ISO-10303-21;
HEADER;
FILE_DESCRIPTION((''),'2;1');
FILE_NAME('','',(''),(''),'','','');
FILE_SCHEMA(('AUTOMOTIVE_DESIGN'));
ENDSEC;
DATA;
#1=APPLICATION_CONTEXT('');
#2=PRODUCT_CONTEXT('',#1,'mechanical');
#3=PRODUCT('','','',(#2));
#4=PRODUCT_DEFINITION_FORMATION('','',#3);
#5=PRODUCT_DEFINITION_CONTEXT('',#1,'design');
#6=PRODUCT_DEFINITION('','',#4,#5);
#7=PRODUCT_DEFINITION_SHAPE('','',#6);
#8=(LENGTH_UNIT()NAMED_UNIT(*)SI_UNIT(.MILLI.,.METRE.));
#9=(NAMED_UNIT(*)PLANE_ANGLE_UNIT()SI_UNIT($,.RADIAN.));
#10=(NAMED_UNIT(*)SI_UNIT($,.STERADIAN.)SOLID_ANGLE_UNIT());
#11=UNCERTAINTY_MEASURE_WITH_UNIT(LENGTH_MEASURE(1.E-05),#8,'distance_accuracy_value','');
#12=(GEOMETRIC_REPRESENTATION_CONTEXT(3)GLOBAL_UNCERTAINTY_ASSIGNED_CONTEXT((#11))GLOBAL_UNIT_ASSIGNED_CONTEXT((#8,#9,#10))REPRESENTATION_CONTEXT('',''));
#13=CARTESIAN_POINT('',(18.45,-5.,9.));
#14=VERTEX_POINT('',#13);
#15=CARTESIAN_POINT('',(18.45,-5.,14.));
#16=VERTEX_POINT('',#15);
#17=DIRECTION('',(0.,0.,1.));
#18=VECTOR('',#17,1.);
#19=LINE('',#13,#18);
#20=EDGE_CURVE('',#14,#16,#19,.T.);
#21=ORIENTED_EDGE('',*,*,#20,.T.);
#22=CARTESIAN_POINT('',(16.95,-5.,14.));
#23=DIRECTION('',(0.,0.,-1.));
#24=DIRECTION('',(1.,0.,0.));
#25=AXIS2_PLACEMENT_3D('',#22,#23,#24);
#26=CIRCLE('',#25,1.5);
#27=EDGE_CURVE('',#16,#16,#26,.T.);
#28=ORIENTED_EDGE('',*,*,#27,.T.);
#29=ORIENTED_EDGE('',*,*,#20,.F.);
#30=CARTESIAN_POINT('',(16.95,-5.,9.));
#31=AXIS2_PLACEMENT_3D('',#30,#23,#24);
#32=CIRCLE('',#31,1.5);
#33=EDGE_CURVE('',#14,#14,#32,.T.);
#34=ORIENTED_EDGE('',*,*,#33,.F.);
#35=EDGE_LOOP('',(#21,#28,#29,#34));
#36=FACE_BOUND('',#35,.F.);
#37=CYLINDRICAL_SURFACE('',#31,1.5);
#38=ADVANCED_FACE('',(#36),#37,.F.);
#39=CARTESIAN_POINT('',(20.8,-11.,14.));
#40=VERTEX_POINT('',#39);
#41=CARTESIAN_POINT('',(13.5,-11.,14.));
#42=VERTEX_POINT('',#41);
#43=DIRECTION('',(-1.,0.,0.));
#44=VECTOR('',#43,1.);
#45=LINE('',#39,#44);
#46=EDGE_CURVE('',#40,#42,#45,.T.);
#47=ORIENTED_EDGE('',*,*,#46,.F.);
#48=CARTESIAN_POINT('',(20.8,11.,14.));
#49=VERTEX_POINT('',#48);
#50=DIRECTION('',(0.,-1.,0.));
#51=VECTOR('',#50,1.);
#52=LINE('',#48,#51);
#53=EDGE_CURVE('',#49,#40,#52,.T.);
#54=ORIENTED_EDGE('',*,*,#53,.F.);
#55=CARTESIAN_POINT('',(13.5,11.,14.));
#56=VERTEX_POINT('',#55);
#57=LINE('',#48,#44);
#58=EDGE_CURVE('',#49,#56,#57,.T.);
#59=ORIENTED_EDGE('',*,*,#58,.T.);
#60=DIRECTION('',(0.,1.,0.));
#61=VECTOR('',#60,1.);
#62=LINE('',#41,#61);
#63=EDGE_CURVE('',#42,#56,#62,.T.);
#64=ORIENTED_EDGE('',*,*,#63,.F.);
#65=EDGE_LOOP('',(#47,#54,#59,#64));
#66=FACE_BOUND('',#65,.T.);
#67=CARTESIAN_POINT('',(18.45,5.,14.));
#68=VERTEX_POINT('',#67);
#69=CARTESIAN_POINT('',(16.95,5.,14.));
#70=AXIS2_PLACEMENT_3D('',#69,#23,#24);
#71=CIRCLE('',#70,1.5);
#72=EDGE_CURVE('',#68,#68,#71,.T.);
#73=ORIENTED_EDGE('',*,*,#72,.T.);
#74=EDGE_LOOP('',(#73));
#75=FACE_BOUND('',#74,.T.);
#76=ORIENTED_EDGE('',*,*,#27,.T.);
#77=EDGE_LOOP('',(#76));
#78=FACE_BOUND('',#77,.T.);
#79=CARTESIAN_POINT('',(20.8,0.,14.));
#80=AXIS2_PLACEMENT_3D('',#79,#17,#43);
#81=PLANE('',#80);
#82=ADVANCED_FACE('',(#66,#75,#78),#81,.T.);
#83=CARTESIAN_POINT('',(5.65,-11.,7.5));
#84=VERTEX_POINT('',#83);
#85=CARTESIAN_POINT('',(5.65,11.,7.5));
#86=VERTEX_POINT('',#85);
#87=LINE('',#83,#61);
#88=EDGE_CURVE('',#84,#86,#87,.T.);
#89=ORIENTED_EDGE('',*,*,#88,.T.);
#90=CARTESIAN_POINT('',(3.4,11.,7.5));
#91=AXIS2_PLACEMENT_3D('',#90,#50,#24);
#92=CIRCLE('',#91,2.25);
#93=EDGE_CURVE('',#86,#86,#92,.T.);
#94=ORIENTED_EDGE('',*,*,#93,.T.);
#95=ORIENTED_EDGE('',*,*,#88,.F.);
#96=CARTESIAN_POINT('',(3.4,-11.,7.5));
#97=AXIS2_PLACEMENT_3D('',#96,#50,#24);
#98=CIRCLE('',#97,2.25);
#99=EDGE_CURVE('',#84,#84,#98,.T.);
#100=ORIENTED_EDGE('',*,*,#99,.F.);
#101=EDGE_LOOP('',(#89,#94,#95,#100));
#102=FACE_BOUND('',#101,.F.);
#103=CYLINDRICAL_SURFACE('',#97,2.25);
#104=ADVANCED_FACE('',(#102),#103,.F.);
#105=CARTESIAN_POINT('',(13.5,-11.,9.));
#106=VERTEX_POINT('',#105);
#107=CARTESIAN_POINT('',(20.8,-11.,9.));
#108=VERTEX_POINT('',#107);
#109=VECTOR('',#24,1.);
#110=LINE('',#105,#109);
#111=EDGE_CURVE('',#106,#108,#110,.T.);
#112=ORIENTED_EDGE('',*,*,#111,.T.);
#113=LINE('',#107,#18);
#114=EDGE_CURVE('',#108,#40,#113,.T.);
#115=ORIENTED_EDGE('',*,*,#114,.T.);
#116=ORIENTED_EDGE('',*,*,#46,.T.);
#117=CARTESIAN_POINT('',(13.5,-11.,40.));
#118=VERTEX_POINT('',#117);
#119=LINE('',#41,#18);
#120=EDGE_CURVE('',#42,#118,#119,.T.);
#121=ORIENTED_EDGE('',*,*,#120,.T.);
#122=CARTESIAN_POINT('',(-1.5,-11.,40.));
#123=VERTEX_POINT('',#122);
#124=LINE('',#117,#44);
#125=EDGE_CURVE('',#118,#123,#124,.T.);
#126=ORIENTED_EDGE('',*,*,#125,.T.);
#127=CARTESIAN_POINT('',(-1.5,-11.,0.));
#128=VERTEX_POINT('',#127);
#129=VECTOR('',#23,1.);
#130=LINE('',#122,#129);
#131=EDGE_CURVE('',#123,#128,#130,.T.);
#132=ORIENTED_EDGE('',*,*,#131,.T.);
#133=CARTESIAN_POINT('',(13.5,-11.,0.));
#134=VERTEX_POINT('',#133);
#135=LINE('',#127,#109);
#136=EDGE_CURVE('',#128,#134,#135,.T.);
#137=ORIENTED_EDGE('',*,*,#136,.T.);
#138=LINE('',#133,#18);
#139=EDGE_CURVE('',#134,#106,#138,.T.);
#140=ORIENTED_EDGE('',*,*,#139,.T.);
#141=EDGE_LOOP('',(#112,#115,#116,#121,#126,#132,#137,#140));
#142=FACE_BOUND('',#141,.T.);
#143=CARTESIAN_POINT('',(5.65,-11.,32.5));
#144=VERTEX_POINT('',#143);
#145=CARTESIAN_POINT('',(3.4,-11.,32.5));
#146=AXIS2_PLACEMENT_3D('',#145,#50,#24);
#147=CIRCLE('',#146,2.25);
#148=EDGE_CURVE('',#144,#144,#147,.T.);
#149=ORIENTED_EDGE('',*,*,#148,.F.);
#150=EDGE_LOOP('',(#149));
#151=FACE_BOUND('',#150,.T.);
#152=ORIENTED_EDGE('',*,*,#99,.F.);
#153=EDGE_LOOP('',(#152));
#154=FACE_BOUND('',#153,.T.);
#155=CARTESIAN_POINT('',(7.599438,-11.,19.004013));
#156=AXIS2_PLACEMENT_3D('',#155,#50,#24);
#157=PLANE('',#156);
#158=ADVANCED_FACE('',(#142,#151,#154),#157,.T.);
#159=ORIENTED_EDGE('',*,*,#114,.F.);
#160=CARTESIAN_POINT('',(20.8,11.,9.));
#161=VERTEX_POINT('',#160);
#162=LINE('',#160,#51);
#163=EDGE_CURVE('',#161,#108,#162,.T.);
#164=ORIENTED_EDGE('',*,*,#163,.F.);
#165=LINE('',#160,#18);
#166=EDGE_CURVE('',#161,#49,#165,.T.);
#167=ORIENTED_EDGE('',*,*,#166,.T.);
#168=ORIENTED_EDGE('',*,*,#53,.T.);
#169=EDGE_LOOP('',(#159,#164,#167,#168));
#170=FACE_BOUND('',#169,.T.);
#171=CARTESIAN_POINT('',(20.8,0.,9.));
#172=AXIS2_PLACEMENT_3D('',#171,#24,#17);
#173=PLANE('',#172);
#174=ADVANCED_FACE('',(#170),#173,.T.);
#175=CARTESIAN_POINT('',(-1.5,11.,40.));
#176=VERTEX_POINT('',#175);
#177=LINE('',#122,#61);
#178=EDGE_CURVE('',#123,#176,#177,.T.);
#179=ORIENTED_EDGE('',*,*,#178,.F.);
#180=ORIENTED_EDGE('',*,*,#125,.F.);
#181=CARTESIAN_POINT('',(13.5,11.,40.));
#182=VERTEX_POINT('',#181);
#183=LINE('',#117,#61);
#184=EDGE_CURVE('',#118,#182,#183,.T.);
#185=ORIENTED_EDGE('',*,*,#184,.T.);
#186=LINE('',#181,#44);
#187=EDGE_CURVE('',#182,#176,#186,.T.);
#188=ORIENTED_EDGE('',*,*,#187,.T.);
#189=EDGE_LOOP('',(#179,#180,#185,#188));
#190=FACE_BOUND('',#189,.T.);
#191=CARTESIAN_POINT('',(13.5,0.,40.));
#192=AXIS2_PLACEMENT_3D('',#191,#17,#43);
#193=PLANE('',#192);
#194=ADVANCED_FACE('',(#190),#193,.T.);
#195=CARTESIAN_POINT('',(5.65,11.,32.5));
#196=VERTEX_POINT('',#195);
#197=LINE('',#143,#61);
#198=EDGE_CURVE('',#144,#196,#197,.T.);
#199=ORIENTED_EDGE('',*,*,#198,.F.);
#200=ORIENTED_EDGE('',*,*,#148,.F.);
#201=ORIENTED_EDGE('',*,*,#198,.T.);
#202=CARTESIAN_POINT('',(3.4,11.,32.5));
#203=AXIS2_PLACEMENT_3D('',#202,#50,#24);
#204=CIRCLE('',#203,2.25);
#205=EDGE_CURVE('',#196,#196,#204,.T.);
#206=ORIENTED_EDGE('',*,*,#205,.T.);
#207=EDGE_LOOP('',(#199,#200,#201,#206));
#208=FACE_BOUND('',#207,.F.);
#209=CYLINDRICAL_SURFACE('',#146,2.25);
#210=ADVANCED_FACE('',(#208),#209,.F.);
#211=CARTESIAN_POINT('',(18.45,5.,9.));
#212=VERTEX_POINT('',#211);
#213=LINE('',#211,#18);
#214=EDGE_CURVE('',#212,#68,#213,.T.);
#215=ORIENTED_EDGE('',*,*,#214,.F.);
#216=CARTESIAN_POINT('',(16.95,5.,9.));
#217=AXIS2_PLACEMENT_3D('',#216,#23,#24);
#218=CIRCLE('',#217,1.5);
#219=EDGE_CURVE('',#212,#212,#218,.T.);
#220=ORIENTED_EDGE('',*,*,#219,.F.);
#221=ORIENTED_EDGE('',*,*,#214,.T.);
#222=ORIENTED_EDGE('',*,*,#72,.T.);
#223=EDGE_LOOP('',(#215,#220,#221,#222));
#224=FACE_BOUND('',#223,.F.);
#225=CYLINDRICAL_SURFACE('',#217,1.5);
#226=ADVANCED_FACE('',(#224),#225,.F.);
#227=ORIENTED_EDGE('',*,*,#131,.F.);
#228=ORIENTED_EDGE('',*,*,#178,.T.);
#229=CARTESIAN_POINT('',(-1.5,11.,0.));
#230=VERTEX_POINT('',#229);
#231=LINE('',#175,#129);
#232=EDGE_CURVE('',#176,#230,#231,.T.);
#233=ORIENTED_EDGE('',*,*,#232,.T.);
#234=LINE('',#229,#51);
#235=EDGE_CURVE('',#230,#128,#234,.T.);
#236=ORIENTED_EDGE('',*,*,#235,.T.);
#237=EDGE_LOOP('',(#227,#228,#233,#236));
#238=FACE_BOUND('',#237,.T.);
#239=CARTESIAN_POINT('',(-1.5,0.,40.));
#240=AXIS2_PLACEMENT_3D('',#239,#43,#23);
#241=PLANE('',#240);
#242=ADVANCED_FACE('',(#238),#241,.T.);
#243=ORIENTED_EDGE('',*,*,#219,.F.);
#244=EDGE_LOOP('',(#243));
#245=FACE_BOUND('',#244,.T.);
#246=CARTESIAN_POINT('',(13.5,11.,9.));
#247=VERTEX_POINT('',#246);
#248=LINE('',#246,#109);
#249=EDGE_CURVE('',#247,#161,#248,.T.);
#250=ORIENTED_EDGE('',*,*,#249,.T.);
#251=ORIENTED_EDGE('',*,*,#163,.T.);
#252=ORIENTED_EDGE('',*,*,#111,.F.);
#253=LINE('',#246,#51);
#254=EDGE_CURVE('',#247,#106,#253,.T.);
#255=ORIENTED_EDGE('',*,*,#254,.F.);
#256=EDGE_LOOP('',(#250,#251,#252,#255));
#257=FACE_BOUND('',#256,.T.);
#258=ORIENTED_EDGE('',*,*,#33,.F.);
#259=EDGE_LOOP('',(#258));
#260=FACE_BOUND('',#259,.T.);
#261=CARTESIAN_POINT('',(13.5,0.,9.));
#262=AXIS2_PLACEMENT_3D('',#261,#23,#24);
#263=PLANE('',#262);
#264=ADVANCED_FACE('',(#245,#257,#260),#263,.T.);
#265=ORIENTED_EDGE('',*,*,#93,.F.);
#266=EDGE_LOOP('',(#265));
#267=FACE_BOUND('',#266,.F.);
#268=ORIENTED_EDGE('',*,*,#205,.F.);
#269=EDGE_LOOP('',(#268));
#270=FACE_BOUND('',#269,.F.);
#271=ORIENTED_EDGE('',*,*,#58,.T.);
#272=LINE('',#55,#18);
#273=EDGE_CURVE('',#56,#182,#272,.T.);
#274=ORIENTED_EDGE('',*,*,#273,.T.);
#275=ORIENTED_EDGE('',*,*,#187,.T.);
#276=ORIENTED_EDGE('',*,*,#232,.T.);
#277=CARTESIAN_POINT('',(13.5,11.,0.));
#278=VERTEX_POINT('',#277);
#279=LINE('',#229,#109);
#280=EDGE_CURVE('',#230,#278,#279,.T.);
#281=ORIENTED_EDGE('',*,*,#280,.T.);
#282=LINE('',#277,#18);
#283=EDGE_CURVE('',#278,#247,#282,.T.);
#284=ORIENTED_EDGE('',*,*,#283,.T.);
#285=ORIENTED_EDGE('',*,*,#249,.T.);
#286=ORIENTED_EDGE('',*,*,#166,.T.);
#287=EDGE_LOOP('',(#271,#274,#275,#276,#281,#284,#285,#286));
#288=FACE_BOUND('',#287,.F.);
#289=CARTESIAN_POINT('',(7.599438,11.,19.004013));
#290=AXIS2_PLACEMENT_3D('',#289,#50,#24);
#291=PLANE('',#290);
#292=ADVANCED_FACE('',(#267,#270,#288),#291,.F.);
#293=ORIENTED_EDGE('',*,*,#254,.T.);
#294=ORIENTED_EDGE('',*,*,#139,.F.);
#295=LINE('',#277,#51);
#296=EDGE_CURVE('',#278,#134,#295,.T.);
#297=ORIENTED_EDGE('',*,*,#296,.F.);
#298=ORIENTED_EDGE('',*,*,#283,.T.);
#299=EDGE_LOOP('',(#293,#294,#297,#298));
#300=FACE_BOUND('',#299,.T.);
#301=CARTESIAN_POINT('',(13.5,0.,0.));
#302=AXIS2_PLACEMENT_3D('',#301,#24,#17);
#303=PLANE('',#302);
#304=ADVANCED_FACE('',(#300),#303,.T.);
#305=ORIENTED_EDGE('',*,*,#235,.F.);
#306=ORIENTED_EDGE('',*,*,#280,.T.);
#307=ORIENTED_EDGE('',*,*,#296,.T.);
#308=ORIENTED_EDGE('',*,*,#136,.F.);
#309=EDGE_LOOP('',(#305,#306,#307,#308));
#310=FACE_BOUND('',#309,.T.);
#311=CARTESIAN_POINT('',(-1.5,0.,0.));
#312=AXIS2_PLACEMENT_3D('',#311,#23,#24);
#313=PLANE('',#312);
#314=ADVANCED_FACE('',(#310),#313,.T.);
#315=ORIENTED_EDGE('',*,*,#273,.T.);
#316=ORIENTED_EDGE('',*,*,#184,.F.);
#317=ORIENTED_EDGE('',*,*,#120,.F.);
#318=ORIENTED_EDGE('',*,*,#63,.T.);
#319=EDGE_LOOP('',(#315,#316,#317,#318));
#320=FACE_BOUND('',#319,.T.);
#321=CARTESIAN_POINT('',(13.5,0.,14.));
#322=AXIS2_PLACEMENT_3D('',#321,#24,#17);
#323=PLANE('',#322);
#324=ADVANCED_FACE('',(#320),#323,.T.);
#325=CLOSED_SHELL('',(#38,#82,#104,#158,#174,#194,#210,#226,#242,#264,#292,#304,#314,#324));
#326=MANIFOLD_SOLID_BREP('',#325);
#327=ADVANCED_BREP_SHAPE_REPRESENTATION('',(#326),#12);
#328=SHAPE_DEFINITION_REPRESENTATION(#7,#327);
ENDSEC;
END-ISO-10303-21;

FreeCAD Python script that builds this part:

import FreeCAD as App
import Part
import Sketcher

V = App.Vector
Q = App.Units.Quantity

doc = App.newDocument("Part")
body = doc.addObject("PartDesign::Body", "Body")

sketch1 = doc.addObject("Sketcher::SketchObject", "Sketch")
body.addObject(sketch1)
sketch1.AttachmentSupport = (doc.XZ_Plane, [""])
sketch1.MapMode = "FlatFace"
sketch1.addGeometry(Part.LineSegment(V(-2, 40, 0), V(-2, 0, 0)), False)
sketch1.addGeometry(Part.LineSegment(V(-2, 0, 0), V(14, 0, 0)), False)
sketch1.addGeometry(Part.LineSegment(V(14, 0, 0), V(14, 9, 0)), False)
sketch1.addGeometry(Part.LineSegment(V(14, 9, 0), V(21, 9, 0)), False)
sketch1.addGeometry(Part.LineSegment(V(21, 9, 0), V(21, 14, 0)), False)
sketch1.addGeometry(Part.LineSegment(V(21, 14, 0), V(14, 14, 0)), False)
sketch1.addGeometry(Part.LineSegment(V(14, 14, 0), V(14, 40, 0)), False)
sketch1.addGeometry(Part.LineSegment(V(14, 40, 0), V(-2, 40, 0)), False)
sketch1.addConstraint(Sketcher.Constraint("Coincident", 0, 2, 1, 1))
sketch1.addConstraint(Sketcher.Constraint("Coincident", 1, 2, 2, 1))
sketch1.addConstraint(Sketcher.Constraint("Coincident", 2, 2, 3, 1))
sketch1.addConstraint(Sketcher.Constraint("Coincident", 3, 2, 4, 1))
sketch1.addConstraint(Sketcher.Constraint("Coincident", 4, 2, 5, 1))
sketch1.addConstraint(Sketcher.Constraint("Coincident", 5, 2, 6, 1))
sketch1.addConstraint(Sketcher.Constraint("Coincident", 6, 2, 7, 1))
sketch1.addConstraint(Sketcher.Constraint("Coincident", 7, 2, 0, 1))
sketch1.addConstraint(Sketcher.Constraint("Vertical", 0))
sketch1.addConstraint(Sketcher.Constraint("Horizontal", 1))
sketch1.addConstraint(Sketcher.Constraint("Vertical", 2))
sketch1.addConstraint(Sketcher.Constraint("Horizontal", 3))
sketch1.addConstraint(Sketcher.Constraint("Vertical", 4))
sketch1.addConstraint(Sketcher.Constraint("Horizontal", 5))
sketch1.addConstraint(Sketcher.Constraint("Vertical", 6))
sketch1.addConstraint(Sketcher.Constraint("Horizontal", 7))
sketch1.addConstraint(Sketcher.Constraint("PointOnObject", 0, 2, -1))
sketch1.addConstraint(Sketcher.Constraint("Vertical", 2, 2, 5, 2))
sketch1.addConstraint(Sketcher.Constraint("DistanceX", 1, 1, 1, 2, Q("15 mm")))
sketch1.addConstraint(Sketcher.Constraint("DistanceY", 0, 2, 0, 1, Q("40 mm")))
sketch1.addConstraint(Sketcher.Constraint("DistanceY", 2, 1, 2, 2, Q("9 mm")))
sketch1.addConstraint(Sketcher.Constraint("DistanceY", 4, 1, 4, 2, Q("5 mm")))
sketch1.addConstraint(Sketcher.Constraint("DistanceX", 3, 1, 3, 2, Q("7.3 mm")))
sketch1.addConstraint(Sketcher.Constraint("DistanceX", 0, 2, -1, 1, Q("1.5 mm")))
pad1 = doc.addObject("PartDesign::Pad", "Pad")
body.addObject(pad1)
pad1.Profile = sketch1
pad1.Length = 22
pad1.Midplane = True

sketch2 = doc.addObject("Sketcher::SketchObject", "Sketch001")
body.addObject(sketch2)
sketch2.AttachmentSupport = (doc.XZ_Plane, [""])
sketch2.MapMode = "FlatFace"
sketch2.AttachmentOffset = App.Placement(V(0, 0, 11), App.Rotation())
sketch2.addGeometry(Part.Circle(V(3.4, 32.5, 0), V(0, 0, 1), 2.2), False)
sketch2.addGeometry(Part.Circle(V(3.4, 7.5, 0), V(0, 0, 1), 2.2), False)
sketch2.addConstraint(Sketcher.Constraint("Equal", 0, 1))
sketch2.addConstraint(Sketcher.Constraint("Vertical", 0, 3, 1, 3))
sketch2.addConstraint(Sketcher.Constraint("Diameter", 0, Q("4.5 mm")))
sketch2.addConstraint(Sketcher.Constraint("DistanceY", 1, 3, 0, 3, Q("25 mm")))
sketch2.addConstraint(Sketcher.Constraint("DistanceX", -1, 1, 0, 3, Q("3.4 mm")))
sketch2.addConstraint(Sketcher.Constraint("DistanceY", -1, 1, 0, 3, Q("32.5 mm")))
pocket1 = doc.addObject("PartDesign::Pocket", "Pocket")
body.addObject(pocket1)
pocket1.Profile = sketch2
pocket1.Length = 25

sketch3 = doc.addObject("Sketcher::SketchObject", "Sketch002")
body.addObject(sketch3)
sketch3.AttachmentSupport = (doc.XY_Plane, [""])
sketch3.MapMode = "FlatFace"
sketch3.AttachmentOffset = App.Placement(V(0, 0, 9), App.Rotation())
sketch3.addGeometry(Part.Circle(V(16.9, -5, 0), V(0, 0, 1), 1.5), False)
sketch3.addGeometry(Part.Circle(V(16.9, 5, 0), V(0, 0, 1), 1.5), False)
sketch3.addConstraint(Sketcher.Constraint("Equal", 0, 1))
sketch3.addConstraint(Sketcher.Constraint("Symmetric", 0, 3, 1, 3, -1))
sketch3.addConstraint(Sketcher.Constraint("Diameter", 0, Q("3 mm")))
sketch3.addConstraint(Sketcher.Constraint("DistanceY", 0, 3, -1, 1, Q("5 mm")))
sketch3.addConstraint(Sketcher.Constraint("DistanceX", -1, 1, 0, 3, Q("16.95 mm")))
pocket2 = doc.addObject("PartDesign::Pocket", "Pocket001")
body.addObject(pocket2)
pocket2.Profile = sketch3
pocket2.Length = 5
pocket2.Reversed = True

doc.recompute()
